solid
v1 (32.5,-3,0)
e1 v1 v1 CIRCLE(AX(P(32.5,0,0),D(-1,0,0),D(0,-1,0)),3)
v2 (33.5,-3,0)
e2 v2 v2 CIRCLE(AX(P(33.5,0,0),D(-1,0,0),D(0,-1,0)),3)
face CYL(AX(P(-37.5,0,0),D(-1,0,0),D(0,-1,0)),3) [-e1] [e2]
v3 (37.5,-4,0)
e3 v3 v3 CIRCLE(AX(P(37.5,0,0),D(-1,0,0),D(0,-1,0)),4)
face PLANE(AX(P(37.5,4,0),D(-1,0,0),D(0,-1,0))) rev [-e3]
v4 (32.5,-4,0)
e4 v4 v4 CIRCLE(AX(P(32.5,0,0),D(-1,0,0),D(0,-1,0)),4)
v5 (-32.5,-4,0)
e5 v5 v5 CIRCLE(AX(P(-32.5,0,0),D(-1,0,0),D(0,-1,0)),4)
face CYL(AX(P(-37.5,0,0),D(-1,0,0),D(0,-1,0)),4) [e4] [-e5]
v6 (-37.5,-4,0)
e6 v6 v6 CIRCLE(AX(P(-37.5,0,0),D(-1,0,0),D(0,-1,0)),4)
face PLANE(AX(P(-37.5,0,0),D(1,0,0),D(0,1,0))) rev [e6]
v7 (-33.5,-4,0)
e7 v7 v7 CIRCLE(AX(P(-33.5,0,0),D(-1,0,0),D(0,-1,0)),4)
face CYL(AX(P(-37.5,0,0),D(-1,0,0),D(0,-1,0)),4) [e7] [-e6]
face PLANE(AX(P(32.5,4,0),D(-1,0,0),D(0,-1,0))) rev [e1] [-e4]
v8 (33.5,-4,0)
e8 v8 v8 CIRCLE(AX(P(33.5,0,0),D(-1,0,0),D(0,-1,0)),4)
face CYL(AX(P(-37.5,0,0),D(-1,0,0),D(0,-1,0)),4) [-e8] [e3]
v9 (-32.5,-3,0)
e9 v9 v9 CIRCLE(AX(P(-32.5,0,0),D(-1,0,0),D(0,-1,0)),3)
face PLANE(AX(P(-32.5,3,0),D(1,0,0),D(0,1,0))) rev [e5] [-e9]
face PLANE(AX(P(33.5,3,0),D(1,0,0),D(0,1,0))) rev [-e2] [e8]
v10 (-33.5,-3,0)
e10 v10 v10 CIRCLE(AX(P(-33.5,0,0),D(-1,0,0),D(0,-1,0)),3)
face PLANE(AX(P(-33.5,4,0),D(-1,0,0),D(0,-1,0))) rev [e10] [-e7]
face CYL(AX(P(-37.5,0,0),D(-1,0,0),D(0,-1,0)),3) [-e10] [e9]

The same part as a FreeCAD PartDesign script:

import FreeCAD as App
import Part
import Sketcher

doc = App.newDocument("Part")
body = doc.addObject("PartDesign::Body", "Body")

# Sketch on XY plane
sketch1 = doc.addObject("Sketcher::SketchObject", "Sketch")
body.addObject(sketch1)
sketch1.AttachmentSupport = (doc.XY_Plane, [""])
sketch1.MapMode = "FlatFace"
sketch1.addGeometry([
    Part.LineSegment(App.Vector(-37.5, 4, 0), App.Vector(-37.5, 0, 0)),  # 0
    Part.LineSegment(App.Vector(-37.5, 0, 0), App.Vector(37.5, 0, 0)),  # 1
    Part.LineSegment(App.Vector(37.5, 0, 0), App.Vector(37.5, 4, 0)),  # 2
    Part.LineSegment(App.Vector(37.5, 4, 0), App.Vector(33.5, 4, 0)),  # 3
    Part.LineSegment(App.Vector(33.5, 4, 0), App.Vector(33.5, 3, 0)),  # 4
    Part.LineSegment(App.Vector(33.5, 3, 0), App.Vector(32.5, 3, 0)),  # 5
    Part.LineSegment(App.Vector(32.5, 3, 0), App.Vector(32.5, 4, 0)),  # 6
    Part.LineSegment(App.Vector(32.5, 4, 0), App.Vector(-32.5, 4, 0)),  # 7
    Part.LineSegment(App.Vector(-32.5, 4, 0), App.Vector(-32.5, 3, 0)),  # 8
    Part.LineSegment(App.Vector(-32.5, 3, 0), App.Vector(-33.5, 3, 0)),  # 9
    Part.LineSegment(App.Vector(-33.5, 3, 0), App.Vector(-33.5, 4, 0)),  # 10
    Part.LineSegment(App.Vector(-33.5, 4, 0), App.Vector(-37.5, 4, 0)),  # 11
], False)
sketch1.addConstraint([
    Sketcher.Constraint("Coincident", 0, 2, 1, 1),
    Sketcher.Constraint("Coincident", 1, 2, 2, 1),
    Sketcher.Constraint("Coincident", 2, 2, 3, 1),
    Sketcher.Constraint("Coincident", 3, 2, 4, 1),
    Sketcher.Constraint("Coincident", 4, 2, 5, 1),
    Sketcher.Constraint("Coincident", 5, 2, 6, 1),
    Sketcher.Constraint("Coincident", 6, 2, 7, 1),
    Sketcher.Constraint("Coincident", 7, 2, 8, 1),
    Sketcher.Constraint("Coincident", 8, 2, 9, 1),
    Sketcher.Constraint("Coincident", 9, 2, 10, 1),
    Sketcher.Constraint("Coincident", 10, 2, 11, 1),
    Sketcher.Constraint("Coincident", 11, 2, 0, 1),
    Sketcher.Constraint("Vertical", 0),
    Sketcher.Constraint("Horizontal", 1),
    Sketcher.Constraint("Vertical", 2),
    Sketcher.Constraint("Horizontal", 3),
    Sketcher.Constraint("Vertical", 4),
    Sketcher.Constraint("Horizontal", 5),
    Sketcher.Constraint("Vertical", 6),
    Sketcher.Constraint("Horizontal", 7),
    Sketcher.Constraint("Vertical", 8),
    Sketcher.Constraint("Horizontal", 9),
    Sketcher.Constraint("Vertical", 10),
    Sketcher.Constraint("Horizontal", 11),
    Sketcher.Constraint("Symmetric", 0, 2, 1, 2, -1, 1),
    Sketcher.Constraint("Symmetric", 5, 2, 8, 2, -2),
    Sketcher.Constraint("Symmetric", 3, 2, 10, 2, -2),
    Sketcher.Constraint("Horizontal", 3, 2, 6, 2),
    Sketcher.Constraint("Equal", 11, 0),
    Sketcher.Constraint("Equal", 9, 4),
    Sketcher.Constraint("DistanceX", 1, 1, 1, 2, 75.0),
    Sketcher.Constraint("DistanceX", 3, 2, 3, 1, 4.0),
    Sketcher.Constraint("DistanceX", 5, 2, 5, 1, 1.0),
])
revolution = doc.addObject("PartDesign::Revolution", "Revolution")
body.addObject(revolution)
revolution.Profile = sketch1
revolution.ReferenceAxis = (sketch1, ["H_Axis"])
revolution.Angle = 360

doc.recompute()
